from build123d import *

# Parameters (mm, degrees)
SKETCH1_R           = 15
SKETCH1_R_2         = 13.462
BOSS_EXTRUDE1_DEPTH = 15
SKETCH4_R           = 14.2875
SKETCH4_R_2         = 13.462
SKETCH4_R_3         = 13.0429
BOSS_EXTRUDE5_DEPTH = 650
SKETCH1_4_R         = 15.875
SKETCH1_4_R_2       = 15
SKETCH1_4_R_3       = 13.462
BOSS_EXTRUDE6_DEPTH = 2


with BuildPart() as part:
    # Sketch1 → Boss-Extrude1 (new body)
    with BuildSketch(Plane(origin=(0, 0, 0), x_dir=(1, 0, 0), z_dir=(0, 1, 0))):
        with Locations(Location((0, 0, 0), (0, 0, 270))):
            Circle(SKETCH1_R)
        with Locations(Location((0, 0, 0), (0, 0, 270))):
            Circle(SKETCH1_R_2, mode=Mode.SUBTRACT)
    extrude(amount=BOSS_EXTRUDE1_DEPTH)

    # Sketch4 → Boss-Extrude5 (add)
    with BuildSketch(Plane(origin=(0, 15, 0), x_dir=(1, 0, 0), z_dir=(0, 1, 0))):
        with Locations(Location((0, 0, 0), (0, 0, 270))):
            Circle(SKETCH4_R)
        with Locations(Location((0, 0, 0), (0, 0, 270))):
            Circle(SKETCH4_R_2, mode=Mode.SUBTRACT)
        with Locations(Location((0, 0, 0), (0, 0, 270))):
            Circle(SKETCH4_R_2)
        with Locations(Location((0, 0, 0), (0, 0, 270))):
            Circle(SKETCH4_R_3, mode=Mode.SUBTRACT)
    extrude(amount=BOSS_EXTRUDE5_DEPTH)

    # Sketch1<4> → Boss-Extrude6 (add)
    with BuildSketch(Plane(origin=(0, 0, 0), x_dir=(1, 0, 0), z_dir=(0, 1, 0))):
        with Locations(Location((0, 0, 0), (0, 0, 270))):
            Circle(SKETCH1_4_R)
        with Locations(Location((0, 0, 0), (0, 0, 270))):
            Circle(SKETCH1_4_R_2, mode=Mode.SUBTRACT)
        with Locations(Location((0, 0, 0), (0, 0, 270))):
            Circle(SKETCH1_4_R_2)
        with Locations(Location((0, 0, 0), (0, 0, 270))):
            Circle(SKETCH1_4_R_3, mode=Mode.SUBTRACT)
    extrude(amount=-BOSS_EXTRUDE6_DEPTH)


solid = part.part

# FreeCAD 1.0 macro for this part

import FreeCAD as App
import Part
import Sketcher
from FreeCAD import Vector

doc = App.newDocument("Part")
body = doc.addObject("PartDesign::Body", "Body")

# Sketch on XZ plane
sketch1 = body.newObject("Sketcher::SketchObject", "Sketch")
sketch1.AttachmentSupport = (doc.getObject("XZ_Plane"), [""])
sketch1.MapMode = "FlatFace"
sketch1.addGeometry([
    Part.Circle(Vector(0, 0, 0), Vector(0, 0, 1), 15),
    Part.Circle(Vector(0, 0, 0), Vector(0, 0, 1), 13),
], False)
sketch1.addConstraint([
    Sketcher.Constraint("Coincident", 0, 3, -1, 1),
    Sketcher.Constraint("Coincident", 1, 3, -1, 1),
    Sketcher.Constraint("Diameter", 0, 30.0),
    Sketcher.Constraint("Diameter", 1, 26.924),
])
pad1 = body.newObject("PartDesign::Pad", "Pad")
pad1.Profile = sketch1
pad1.Length = 15
pad1.Reversed = True

# Sketch on XZ plane
sketch2 = body.newObject("Sketcher::SketchObject", "Sketch001")
sketch2.AttachmentSupport = (doc.getObject("XZ_Plane"), [""])
sketch2.MapMode = "FlatFace"
sketch2.AttachmentOffset = App.Placement(Vector(0, 0, -15), App.Rotation())
sketch2.addGeometry([
    Part.Circle(Vector(0, 0, 0), Vector(0, 0, 1), 14),
    Part.Circle(Vector(0, 0, 0), Vector(0, 0, 1), 13),
], False)
sketch2.addConstraint([
    Sketcher.Constraint("Coincident", 0, 3, -1, 1),
    Sketcher.Constraint("Coincident", 1, 3, -1, 1),
    Sketcher.Constraint("Diameter", 0, 28.575),
    Sketcher.Constraint("Diameter", 1, 26.0858),
])
pad2 = body.newObject("PartDesign::Pad", "Pad001")
pad2.Profile = sketch2
pad2.Length = 650
pad2.Reversed = True

# Sketch on XZ plane
sketch3 = body.newObject("Sketcher::SketchObject", "Sketch002")
sketch3.AttachmentSupport = (doc.getObject("XZ_Plane"), [""])
sketch3.MapMode = "FlatFace"
sketch3.addGeometry([
    Part.Circle(Vector(0, 0, 0), Vector(0, 0, 1), 16),
    Part.Circle(Vector(0, 0, 0), Vector(0, 0, 1), 13),
], False)
sketch3.addConstraint([
    Sketcher.Constraint("Coincident", 0, 3, -1, 1),
    Sketcher.Constraint("Coincident", 1, 3, -1, 1),
    Sketcher.Constraint("Diameter", 0, 31.75),
    Sketcher.Constraint("Diameter", 1, 26.924),
])
pad3 = body.newObject("PartDesign::Pad", "Pad002")
pad3.Profile = sketch3
pad3.Length = 2

doc.recompute()
